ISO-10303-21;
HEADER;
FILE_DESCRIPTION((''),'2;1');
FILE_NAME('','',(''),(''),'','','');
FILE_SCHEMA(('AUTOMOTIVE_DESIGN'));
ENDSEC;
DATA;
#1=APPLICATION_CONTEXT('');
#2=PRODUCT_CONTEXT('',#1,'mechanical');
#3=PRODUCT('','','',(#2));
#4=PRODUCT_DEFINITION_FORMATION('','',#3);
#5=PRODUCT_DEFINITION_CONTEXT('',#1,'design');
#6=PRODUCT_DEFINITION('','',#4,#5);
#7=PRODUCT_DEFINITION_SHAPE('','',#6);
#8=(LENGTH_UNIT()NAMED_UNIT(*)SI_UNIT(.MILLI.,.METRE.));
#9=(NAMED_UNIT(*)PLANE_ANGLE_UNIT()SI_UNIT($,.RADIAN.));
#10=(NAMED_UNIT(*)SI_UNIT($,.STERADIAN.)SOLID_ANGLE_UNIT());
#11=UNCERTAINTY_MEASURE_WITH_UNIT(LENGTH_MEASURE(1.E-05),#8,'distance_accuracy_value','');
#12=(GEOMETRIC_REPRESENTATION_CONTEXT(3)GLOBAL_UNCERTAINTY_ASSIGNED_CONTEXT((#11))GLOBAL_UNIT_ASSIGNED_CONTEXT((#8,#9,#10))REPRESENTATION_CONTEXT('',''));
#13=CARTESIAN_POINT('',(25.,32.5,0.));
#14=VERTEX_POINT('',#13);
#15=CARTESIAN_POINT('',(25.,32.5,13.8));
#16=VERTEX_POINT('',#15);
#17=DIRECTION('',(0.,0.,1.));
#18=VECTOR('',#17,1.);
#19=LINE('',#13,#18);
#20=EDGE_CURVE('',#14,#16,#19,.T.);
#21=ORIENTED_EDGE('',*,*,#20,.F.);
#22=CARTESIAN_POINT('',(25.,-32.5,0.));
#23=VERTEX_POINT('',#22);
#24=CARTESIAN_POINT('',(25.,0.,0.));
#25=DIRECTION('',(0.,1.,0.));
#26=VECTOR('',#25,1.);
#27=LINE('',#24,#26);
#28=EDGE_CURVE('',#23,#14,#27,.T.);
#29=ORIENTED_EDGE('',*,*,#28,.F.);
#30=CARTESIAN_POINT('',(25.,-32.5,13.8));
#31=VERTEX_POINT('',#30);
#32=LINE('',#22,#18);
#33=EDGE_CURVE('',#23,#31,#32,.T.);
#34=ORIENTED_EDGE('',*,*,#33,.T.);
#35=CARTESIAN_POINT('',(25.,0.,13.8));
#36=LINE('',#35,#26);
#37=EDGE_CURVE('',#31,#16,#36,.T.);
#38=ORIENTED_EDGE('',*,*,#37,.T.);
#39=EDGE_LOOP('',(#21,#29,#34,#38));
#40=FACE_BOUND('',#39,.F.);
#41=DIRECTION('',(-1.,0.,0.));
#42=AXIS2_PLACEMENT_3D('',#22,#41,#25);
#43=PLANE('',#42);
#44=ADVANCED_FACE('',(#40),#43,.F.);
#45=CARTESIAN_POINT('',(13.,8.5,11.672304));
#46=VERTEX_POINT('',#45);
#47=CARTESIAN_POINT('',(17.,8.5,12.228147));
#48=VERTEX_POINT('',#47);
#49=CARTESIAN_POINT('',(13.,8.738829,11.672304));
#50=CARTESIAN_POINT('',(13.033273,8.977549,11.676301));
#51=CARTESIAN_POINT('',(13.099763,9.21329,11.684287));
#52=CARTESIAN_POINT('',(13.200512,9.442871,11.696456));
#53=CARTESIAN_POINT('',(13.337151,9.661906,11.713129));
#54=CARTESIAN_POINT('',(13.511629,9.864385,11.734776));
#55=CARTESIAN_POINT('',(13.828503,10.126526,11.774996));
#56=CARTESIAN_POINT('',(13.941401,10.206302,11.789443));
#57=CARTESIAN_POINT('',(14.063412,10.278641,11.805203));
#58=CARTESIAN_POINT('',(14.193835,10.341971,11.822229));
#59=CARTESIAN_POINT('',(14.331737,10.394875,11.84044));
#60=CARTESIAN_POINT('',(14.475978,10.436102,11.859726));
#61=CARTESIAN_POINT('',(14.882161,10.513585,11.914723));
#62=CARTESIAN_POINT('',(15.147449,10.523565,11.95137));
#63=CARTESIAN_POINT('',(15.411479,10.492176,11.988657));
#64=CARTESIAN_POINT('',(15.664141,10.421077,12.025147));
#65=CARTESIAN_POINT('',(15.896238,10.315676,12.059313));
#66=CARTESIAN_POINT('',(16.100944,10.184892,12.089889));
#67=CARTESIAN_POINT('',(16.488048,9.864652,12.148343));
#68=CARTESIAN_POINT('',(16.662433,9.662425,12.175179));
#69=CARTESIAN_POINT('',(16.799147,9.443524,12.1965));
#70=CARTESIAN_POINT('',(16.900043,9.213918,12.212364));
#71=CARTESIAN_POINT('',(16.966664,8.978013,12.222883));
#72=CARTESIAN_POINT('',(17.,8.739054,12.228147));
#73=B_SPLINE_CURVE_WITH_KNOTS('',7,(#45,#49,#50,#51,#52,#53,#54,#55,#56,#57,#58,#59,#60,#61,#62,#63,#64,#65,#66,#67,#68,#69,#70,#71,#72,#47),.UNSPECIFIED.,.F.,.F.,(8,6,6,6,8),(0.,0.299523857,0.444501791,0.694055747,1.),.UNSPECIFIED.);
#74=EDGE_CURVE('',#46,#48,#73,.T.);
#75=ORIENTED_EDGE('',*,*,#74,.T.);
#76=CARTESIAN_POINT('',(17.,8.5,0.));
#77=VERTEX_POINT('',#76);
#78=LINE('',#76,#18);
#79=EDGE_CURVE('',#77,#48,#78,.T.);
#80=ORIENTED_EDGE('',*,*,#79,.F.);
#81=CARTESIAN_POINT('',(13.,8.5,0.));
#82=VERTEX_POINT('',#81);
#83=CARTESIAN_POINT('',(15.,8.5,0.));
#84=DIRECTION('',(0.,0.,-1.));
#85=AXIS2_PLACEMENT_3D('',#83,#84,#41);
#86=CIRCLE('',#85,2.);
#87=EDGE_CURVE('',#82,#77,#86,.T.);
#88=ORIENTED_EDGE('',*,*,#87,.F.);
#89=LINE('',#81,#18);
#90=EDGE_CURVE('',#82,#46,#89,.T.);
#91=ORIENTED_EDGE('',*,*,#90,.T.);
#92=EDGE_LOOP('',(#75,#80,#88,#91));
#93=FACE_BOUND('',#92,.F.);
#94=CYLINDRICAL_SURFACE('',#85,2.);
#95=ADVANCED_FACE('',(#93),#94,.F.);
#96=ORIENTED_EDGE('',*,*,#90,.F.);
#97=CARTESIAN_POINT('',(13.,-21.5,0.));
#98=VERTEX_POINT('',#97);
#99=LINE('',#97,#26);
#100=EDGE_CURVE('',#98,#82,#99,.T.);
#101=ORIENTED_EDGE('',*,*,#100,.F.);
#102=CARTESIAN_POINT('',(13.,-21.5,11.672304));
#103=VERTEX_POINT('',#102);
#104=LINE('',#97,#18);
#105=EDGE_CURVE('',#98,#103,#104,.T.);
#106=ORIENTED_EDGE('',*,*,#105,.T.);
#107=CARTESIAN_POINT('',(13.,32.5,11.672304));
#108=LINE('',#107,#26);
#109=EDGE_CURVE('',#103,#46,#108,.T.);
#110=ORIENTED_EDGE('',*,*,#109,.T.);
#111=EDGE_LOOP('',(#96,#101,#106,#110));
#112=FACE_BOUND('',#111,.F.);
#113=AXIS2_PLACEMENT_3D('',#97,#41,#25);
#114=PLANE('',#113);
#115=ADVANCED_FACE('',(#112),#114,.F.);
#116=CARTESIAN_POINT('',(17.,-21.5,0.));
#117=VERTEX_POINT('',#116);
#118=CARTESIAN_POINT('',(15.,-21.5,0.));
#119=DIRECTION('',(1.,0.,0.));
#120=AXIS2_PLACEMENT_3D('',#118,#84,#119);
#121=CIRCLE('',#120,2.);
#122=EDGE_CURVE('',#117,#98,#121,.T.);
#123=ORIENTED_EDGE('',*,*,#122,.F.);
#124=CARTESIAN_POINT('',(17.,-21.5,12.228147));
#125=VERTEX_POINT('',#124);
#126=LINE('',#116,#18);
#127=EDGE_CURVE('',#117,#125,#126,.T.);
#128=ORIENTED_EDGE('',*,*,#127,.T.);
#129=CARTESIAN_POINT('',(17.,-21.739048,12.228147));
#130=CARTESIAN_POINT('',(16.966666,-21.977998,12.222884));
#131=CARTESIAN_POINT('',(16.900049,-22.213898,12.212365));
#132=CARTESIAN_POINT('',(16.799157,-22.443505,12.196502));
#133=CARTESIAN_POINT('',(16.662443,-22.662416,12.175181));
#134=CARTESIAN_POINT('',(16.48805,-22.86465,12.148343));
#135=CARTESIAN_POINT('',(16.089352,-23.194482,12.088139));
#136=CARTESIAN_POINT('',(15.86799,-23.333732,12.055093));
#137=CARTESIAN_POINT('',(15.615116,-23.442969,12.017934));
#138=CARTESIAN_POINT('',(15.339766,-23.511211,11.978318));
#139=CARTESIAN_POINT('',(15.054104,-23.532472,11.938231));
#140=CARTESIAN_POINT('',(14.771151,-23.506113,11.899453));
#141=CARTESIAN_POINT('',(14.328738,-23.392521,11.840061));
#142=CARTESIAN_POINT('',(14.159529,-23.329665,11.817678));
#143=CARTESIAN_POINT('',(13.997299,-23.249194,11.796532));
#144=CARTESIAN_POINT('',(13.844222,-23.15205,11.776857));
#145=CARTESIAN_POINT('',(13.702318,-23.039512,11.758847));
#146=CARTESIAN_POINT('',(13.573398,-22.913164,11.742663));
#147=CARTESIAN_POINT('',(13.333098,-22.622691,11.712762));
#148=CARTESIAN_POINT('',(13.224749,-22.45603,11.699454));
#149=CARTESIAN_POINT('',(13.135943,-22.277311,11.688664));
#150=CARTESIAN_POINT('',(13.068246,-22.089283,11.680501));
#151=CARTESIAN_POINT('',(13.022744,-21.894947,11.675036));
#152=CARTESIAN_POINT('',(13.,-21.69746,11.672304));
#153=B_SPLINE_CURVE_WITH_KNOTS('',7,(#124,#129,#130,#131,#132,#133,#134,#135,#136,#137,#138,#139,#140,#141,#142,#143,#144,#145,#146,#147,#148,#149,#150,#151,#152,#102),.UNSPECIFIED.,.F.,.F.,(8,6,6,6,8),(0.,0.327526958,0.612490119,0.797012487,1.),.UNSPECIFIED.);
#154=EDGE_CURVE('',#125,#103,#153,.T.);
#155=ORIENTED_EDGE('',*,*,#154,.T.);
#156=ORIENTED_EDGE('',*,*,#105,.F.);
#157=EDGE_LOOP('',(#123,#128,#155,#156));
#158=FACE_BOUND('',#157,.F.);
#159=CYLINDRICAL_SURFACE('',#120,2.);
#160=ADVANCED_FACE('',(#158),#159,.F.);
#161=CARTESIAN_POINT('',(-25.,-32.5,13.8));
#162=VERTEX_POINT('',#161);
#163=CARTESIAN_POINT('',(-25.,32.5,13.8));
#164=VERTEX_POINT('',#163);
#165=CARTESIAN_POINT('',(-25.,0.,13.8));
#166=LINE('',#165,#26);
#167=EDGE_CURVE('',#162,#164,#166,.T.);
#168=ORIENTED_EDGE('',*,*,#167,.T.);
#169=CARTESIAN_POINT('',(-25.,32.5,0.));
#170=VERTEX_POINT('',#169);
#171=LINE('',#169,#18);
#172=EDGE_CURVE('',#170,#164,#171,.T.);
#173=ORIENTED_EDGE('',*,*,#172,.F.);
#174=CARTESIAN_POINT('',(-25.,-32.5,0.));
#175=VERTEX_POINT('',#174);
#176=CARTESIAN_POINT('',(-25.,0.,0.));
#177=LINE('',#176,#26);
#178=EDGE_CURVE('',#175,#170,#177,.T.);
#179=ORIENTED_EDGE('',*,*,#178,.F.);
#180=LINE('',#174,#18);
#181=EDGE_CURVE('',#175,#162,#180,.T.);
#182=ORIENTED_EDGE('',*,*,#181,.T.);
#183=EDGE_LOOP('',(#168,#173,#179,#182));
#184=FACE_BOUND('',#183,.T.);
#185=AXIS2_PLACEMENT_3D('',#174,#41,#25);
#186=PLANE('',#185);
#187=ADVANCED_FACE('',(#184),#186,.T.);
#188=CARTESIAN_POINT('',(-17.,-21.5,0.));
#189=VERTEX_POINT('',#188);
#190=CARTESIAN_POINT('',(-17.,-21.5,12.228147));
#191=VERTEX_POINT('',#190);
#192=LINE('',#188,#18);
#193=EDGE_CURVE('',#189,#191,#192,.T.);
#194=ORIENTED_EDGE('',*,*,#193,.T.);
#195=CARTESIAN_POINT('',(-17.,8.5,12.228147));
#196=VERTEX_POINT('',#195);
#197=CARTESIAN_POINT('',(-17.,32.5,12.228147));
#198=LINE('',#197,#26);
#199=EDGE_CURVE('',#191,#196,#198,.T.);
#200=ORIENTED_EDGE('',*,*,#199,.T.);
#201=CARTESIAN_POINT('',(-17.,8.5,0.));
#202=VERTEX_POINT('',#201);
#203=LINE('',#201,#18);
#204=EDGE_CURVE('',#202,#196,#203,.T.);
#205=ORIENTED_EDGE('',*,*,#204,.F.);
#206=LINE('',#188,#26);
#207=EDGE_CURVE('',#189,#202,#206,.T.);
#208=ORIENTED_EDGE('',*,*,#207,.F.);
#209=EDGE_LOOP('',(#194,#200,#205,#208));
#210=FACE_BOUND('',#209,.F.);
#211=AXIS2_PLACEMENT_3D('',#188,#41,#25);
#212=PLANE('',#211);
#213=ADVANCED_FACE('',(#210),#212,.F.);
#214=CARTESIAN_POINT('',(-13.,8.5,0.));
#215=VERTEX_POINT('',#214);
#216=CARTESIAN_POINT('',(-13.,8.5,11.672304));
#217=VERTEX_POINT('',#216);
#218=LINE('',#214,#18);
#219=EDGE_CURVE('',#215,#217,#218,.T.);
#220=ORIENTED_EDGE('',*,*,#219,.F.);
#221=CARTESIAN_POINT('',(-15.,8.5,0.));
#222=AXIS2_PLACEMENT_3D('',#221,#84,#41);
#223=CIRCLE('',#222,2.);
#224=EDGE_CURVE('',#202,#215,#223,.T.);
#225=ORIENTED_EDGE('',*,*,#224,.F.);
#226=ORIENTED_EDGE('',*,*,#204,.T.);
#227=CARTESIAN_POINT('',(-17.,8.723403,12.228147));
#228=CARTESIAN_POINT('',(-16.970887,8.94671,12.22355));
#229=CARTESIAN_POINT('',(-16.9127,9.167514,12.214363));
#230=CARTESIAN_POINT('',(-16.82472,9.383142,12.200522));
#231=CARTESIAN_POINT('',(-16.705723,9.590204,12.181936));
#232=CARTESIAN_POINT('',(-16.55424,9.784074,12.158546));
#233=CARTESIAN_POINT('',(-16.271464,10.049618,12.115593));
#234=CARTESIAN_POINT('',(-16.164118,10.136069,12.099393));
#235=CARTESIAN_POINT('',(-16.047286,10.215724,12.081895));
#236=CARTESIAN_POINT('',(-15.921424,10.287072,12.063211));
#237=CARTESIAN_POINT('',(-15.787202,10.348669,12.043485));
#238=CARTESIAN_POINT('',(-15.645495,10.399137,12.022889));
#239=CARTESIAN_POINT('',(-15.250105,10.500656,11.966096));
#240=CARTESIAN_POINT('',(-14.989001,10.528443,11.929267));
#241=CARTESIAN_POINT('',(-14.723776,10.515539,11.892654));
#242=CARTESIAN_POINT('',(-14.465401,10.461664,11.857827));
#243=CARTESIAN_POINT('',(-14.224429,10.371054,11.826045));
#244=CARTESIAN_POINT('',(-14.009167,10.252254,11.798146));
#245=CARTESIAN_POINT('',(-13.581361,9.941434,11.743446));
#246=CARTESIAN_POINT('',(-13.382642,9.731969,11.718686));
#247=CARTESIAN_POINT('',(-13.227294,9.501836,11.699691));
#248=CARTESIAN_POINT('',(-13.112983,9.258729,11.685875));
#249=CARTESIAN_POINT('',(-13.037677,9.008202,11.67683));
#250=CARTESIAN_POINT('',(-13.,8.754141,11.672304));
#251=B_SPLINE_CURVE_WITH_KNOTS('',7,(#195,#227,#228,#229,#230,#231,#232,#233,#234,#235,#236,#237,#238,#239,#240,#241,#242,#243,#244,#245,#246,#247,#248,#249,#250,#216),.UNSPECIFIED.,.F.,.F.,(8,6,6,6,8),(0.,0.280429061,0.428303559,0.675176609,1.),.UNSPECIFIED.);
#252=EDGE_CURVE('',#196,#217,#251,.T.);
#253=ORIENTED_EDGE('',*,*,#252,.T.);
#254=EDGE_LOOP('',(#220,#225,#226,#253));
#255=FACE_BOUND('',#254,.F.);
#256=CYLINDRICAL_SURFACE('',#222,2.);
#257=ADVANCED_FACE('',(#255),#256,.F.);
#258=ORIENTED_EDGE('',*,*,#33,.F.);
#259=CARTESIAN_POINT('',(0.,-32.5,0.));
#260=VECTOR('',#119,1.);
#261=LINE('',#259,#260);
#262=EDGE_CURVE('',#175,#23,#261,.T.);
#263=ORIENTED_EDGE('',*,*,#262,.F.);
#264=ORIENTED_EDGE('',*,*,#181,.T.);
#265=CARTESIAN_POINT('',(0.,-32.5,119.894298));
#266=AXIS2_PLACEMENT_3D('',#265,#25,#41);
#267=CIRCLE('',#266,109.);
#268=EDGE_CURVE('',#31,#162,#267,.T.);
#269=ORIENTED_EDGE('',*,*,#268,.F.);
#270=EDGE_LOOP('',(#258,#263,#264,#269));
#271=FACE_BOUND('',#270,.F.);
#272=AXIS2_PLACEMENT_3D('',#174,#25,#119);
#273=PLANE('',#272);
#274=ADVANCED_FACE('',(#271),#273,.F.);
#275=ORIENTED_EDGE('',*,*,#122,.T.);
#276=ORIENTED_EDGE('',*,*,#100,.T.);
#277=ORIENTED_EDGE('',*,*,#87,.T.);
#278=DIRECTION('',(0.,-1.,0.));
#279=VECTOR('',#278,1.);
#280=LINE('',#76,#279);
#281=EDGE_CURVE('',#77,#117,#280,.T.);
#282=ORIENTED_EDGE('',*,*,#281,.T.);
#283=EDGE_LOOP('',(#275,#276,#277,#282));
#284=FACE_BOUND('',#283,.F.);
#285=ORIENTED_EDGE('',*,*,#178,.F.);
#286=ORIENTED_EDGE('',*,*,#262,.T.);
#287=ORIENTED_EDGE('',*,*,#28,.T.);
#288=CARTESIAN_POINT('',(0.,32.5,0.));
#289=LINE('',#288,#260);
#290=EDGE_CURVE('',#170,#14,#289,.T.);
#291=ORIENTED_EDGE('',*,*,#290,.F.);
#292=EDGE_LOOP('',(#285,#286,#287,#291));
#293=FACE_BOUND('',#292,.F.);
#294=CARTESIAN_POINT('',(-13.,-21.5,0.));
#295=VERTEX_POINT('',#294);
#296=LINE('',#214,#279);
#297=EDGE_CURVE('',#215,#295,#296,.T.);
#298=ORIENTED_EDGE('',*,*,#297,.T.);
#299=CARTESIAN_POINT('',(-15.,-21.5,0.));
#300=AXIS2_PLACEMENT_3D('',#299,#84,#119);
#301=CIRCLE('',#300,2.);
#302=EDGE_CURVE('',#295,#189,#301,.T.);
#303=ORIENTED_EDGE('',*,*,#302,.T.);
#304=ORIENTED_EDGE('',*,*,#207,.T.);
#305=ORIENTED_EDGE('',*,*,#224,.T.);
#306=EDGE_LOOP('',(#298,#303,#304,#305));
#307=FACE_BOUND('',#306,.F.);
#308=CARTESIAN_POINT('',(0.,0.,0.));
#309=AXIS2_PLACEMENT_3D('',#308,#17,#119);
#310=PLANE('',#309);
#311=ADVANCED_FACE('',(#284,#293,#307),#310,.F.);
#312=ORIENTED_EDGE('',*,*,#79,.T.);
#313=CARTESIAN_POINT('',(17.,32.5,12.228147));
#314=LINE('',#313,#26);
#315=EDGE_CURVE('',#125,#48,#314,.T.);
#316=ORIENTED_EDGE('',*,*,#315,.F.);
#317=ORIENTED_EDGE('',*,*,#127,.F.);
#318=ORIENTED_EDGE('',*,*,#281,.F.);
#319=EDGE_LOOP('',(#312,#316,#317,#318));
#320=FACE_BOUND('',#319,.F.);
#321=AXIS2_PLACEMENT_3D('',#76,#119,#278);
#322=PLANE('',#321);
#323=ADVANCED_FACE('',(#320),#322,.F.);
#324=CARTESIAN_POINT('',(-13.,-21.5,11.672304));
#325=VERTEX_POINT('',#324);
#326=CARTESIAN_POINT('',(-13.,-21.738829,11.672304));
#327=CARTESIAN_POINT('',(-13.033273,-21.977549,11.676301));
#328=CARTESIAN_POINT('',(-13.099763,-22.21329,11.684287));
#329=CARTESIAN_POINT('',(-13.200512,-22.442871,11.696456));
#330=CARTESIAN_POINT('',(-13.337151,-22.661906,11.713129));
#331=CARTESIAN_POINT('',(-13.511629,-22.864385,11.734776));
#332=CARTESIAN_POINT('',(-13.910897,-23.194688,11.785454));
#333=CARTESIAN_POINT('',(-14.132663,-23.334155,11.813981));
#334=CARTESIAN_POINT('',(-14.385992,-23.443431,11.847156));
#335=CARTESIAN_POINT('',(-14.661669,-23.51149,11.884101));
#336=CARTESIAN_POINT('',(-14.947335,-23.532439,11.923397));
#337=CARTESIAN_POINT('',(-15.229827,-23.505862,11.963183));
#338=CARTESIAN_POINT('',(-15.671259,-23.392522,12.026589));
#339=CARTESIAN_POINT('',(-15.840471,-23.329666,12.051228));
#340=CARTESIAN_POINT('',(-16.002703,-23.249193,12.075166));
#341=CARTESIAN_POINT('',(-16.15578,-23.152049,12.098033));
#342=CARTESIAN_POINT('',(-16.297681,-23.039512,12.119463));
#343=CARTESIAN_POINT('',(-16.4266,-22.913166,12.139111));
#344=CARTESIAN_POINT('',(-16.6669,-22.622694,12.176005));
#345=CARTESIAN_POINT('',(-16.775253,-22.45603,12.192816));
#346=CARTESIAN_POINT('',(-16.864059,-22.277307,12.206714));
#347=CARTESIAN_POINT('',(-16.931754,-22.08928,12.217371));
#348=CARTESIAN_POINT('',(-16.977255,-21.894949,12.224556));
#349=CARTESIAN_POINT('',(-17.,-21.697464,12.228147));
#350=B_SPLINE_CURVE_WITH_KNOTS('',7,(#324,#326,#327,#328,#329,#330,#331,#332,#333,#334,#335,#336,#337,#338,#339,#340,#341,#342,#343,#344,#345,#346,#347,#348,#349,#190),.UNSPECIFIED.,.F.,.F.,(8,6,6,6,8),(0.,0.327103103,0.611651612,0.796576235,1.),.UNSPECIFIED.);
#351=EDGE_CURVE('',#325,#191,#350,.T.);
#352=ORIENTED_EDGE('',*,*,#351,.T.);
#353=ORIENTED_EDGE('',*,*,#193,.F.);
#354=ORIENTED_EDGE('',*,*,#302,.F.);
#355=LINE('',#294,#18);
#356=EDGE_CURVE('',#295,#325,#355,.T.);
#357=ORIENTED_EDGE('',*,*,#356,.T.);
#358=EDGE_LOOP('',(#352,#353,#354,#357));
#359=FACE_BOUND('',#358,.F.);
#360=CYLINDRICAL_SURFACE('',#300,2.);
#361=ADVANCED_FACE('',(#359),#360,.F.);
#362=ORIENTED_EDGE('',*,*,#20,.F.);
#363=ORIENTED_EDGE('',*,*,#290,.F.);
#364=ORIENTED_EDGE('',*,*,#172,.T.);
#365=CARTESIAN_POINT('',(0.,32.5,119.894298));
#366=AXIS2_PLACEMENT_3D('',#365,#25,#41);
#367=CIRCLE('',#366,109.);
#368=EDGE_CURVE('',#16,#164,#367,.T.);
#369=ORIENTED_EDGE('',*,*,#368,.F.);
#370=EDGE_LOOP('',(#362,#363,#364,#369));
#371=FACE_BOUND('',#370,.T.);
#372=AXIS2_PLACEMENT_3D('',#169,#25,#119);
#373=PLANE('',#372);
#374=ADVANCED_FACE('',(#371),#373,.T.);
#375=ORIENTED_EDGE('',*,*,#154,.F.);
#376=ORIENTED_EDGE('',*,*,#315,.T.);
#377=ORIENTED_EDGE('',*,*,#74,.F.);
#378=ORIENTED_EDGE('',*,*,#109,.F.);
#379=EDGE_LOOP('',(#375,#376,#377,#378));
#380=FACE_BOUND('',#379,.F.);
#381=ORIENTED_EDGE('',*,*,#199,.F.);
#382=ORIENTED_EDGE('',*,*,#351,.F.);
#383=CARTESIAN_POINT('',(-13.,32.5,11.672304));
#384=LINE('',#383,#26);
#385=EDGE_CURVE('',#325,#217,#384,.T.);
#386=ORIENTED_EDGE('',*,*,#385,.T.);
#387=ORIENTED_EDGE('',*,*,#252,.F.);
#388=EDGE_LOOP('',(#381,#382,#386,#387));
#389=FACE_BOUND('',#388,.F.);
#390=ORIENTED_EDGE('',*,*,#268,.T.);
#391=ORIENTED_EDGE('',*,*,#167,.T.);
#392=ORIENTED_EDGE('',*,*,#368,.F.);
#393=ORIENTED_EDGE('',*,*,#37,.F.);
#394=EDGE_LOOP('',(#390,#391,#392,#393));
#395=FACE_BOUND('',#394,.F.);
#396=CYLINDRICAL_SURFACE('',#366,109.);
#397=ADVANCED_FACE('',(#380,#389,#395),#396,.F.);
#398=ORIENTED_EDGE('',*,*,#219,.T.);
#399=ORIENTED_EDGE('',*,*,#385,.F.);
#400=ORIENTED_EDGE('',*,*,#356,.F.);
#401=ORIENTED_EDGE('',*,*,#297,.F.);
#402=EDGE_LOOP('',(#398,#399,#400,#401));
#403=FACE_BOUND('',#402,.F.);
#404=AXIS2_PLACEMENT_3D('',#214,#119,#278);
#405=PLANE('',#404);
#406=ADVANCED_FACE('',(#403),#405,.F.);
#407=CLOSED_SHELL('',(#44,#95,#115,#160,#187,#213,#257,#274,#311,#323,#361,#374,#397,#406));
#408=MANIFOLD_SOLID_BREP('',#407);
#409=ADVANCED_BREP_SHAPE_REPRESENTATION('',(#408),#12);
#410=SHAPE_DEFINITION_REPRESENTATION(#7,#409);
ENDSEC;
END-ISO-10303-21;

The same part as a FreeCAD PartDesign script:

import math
import FreeCAD as App
import Part
import Sketcher

V = App.Vector


def add_polygon(sketch, points):
    """Adds a closed chain of lines whose ends are joined by coincident constraints."""
    first, n = sketch.GeometryCount, len(points)
    for a, b in zip(points, points[1:] + points[:1]):
        sketch.addGeometry(Part.LineSegment(App.Vector(*a, 0), App.Vector(*b, 0)), False)
    for i in range(n):
        sketch.addConstraint(Sketcher.Constraint("Coincident", first + i, 2, first + (i + 1) % n, 1))

doc = App.newDocument("Part")
params = doc.addObject("Spreadsheet::Sheet", "Params")
for row, (alias, value) in enumerate([
    ("sketch1_width", "50 mm"),
    ("sketch1_height", "65 mm"),
    ("pad1_length", "13.8 mm"),
    ("sketch2_diameter", "218 mm"),
    ("pocket1_length", "65 mm"),
    ("sketch3_radius", "2 mm"),
    ("sketch3_height", "30 mm"),
    ("pocket2_length", "15 mm"),
], start=1):
    params.set(f"A{row}", alias)
    params.set(f"B{row}", "=" + value)
    params.setAlias(f"B{row}", alias)

body = doc.addObject("PartDesign::Body", "Body")

# Sketch on XY plane
sketch1 = doc.addObject("Sketcher::SketchObject", "Sketch")
body.addObject(sketch1)
sketch1.AttachmentSupport = (doc.XY_Plane, [""])
sketch1.MapMode = "FlatFace"
add_polygon(sketch1, [(-25, 32), (-25, -32), (25, -32), (25, 32)])  # lines 0-3
sketch1.addConstraint(Sketcher.Constraint("Vertical", 0))
sketch1.addConstraint(Sketcher.Constraint("Horizontal", 1))
sketch1.addConstraint(Sketcher.Constraint("Vertical", 2))
sketch1.addConstraint(Sketcher.Constraint("Horizontal", 3))
sketch1.addConstraint(Sketcher.Constraint("Symmetric", 0, 2, 2, 2, -1, 1))
sketch1.addConstraint(Sketcher.Constraint("DistanceX", 1, 1, 1, 2, 50.0))
sketch1.addConstraint(Sketcher.Constraint("DistanceY", 0, 2, 0, 1, 65.0))
sketch1.setExpression("Constraints[9]", "Params.sketch1_width")
sketch1.setExpression("Constraints[10]", "Params.sketch1_height")
pad1 = doc.addObject("PartDesign::Pad", "Pad")
body.addObject(pad1)
pad1.Profile = sketch1
pad1.setExpression("Length", "Params.pad1_length")

# Sketch on XZ plane
sketch2 = doc.addObject("Sketcher::SketchObject", "Sketch001")
body.addObject(sketch2)
sketch2.AttachmentSupport = (doc.XZ_Plane, [""])
sketch2.MapMode = "FlatFace"
sketch2.AttachmentOffset = App.Placement(V(0, 0, -32.5), App.Rotation())
sketch2.addGeometry(Part.Circle(V(0, 120, 0), V(0, 0, 1), 109), False)
sketch2.addConstraint(Sketcher.Constraint("PointOnObject", 0, 3, -2))
sketch2.addConstraint(Sketcher.Constraint("Diameter", 0, 218.0))
sketch2.addConstraint(Sketcher.Constraint("DistanceY", -1, 1, 0, 3, 119.894298))
sketch2.setExpression("Constraints[1]", "Params.sketch2_diameter")
pocket1 = doc.addObject("PartDesign::Pocket", "Pocket")
body.addObject(pocket1)
pocket1.Profile = sketch2
pocket1.setExpression("Length", "Params.pocket1_length")
pocket1.Reversed = True

# Sketch on XY plane
sketch3 = doc.addObject("Sketcher::SketchObject", "Sketch002")
body.addObject(sketch3)
sketch3.AttachmentSupport = (doc.XY_Plane, [""])
sketch3.MapMode = "FlatFace"
sketch3.addGeometry(Part.ArcOfCircle(Part.Circle(V(-15, -21.5, 0), V(0, 0, 1), 2), math.radians(180), math.radians(360)), False)
sketch3.addGeometry(Part.LineSegment(V(-17, -21.5, 0), V(-17, 8.5, 0)), False)
sketch3.addGeometry(Part.ArcOfCircle(Part.Circle(V(-15, 8.5, 0), V(0, 0, 1), 2), math.radians(0), math.radians(180)), False)
sketch3.addGeometry(Part.LineSegment(V(-13, 8.5, 0), V(-13, -21.5, 0)), False)
sketch3.addGeometry(Part.ArcOfCircle(Part.Circle(V(15, -21.5, 0), V(0, 0, 1), 2), math.radians(180), math.radians(360)), False)
sketch3.addGeometry(Part.LineSegment(V(13, -21.5, 0), V(13, 8.5, 0)), False)
sketch3.addGeometry(Part.ArcOfCircle(Part.Circle(V(15, 8.5, 0), V(0, 0, 1), 2), math.radians(0), math.radians(180)), False)
sketch3.addGeometry(Part.LineSegment(V(17, 8.5, 0), V(17, -21.5, 0)), False)
sketch3.addConstraint(Sketcher.Constraint("Tangent", 0, 1, 1, 1))
sketch3.addConstraint(Sketcher.Constraint("Tangent", 1, 2, 2, 2))
sketch3.addConstraint(Sketcher.Constraint("Tangent", 2, 1, 3, 1))
sketch3.addConstraint(Sketcher.Constraint("Tangent", 3, 2, 0, 2))
sketch3.addConstraint(Sketcher.Constraint("Tangent", 4, 1, 5, 1))
sketch3.addConstraint(Sketcher.Constraint("Tangent", 5, 2, 6, 2))
sketch3.addConstraint(Sketcher.Constraint("Tangent", 6, 1, 7, 1))
sketch3.addConstraint(Sketcher.Constraint("Tangent", 7, 2, 4, 2))
sketch3.addConstraint(Sketcher.Constraint("Vertical", 1))
sketch3.addConstraint(Sketcher.Constraint("Vertical", 3))
sketch3.addConstraint(Sketcher.Constraint("Vertical", 5))
sketch3.addConstraint(Sketcher.Constraint("Vertical", 7))
sketch3.addConstraint(Sketcher.Constraint("Equal", 2, 4))
sketch3.addConstraint(Sketcher.Constraint("Symmetric", 0, 3, 4, 3, -2))
sketch3.addConstraint(Sketcher.Constraint("Horizontal", 2, 3, 6, 3))
sketch3.addConstraint(Sketcher.Constraint("Radius", 0, 2.0))
sketch3.addConstraint(Sketcher.Constraint("DistanceY", 1, 1, 1, 2, 30.0))
sketch3.addConstraint(Sketcher.Constraint("DistanceX", 0, 3, -1, 1, 15.0))
sketch3.addConstraint(Sketcher.Constraint("DistanceY", 0, 3, -1, 1, 21.5))
sketch3.setExpression("Constraints[15]", "Params.sketch3_radius")
sketch3.setExpression("Constraints[16]", "Params.sketch3_height")
pocket2 = doc.addObject("PartDesign::Pocket", "Pocket001")
body.addObject(pocket2)
pocket2.Profile = sketch3
pocket2.setExpression("Length", "Params.pocket2_length")
pocket2.Reversed = True

doc.recompute()
